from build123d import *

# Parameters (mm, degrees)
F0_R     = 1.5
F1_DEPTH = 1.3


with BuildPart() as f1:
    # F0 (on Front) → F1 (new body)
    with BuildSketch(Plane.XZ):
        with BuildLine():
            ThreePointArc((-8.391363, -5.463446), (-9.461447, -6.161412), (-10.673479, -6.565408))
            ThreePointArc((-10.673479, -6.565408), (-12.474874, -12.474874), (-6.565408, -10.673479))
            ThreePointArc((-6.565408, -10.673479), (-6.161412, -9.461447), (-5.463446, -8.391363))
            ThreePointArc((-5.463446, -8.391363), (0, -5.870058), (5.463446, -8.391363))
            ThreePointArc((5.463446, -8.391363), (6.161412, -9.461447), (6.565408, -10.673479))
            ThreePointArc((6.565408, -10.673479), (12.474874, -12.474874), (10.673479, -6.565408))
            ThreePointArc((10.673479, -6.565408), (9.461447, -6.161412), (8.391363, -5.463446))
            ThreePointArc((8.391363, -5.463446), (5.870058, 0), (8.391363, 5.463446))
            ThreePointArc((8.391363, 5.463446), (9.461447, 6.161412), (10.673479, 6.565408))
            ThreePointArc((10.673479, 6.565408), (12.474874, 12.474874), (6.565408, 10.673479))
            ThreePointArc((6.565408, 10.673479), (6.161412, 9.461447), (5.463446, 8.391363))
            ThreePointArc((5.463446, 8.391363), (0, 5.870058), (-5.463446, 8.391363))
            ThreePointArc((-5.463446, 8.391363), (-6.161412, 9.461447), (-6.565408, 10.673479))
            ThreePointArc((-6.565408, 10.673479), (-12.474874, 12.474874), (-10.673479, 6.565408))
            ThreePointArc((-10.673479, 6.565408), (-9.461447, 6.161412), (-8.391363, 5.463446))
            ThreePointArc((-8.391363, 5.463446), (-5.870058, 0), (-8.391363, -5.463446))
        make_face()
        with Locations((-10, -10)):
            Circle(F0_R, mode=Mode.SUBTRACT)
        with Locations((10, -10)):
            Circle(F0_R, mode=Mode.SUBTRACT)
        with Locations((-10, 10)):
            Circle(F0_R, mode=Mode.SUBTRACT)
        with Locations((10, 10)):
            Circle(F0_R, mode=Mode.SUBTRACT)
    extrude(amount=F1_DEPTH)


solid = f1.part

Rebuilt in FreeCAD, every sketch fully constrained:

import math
import FreeCAD as App
import Part
import Sketcher
from FreeCAD import Vector

doc = App.newDocument("Part")
params = doc.addObject("Spreadsheet::Sheet", "Params")
for row, (alias, value) in enumerate([
    ("sketch1_diameter", "3 mm"),
    ("sketch1_radius", "3.5 mm"),
    ("pad1_length", "1.3 mm"),
], start=1):
    params.set(f"A{row}", alias)
    params.set(f"B{row}", "=" + value)
    params.setAlias(f"B{row}", alias)

body = doc.addObject("PartDesign::Body", "Body")

sketch1 = body.newObject("Sketcher::SketchObject", "Sketch")
sketch1.AttachmentSupport = (doc.getObject("XZ_Plane"), [""])
sketch1.MapMode = "FlatFace"
sketch1.addGeometry(Part.ArcOfCircle(Part.Circle(Vector(-11.635594, -1.658846, 0), Vector(0, 0, 1), 5.000002), math.radians(-78.90578), math.radians(-49.54535)), False)
sketch1.addGeometry(Part.ArcOfCircle(Part.Circle(Vector(-10, -10, 0), Vector(0, 0, 1), 3.5), math.radians(101.09419), math.radians(348.90581)), False)
sketch1.addGeometry(Part.ArcOfCircle(Part.Circle(Vector(-1.658846, -11.635594, 0), Vector(0, 0, 1), 5.000002), math.radians(139.54535), math.radians(168.90578)), False)
sketch1.addGeometry(Part.ArcOfCircle(Part.Circle(Vector(0, -13.050114, 0), Vector(0, 0, 1), 7.180056), math.radians(40.454655), math.radians(139.545345)), False)
sketch1.addGeometry(Part.ArcOfCircle(Part.Circle(Vector(1.658846, -11.635594, 0), Vector(0, 0, 1), 5.000002), math.radians(11.09422), math.radians(40.45465)), False)
sketch1.addGeometry(Part.ArcOfCircle(Part.Circle(Vector(10, -10, 0), Vector(0, 0, 1), 3.5), math.radians(-168.90581), math.radians(78.90581)), False)
sketch1.addGeometry(Part.ArcOfCircle(Part.Circle(Vector(11.635594, -1.658846, 0), Vector(0, 0, 1), 5.000002), math.radians(-130.45465), math.radians(-101.09422)), False)
sketch1.addGeometry(Part.ArcOfCircle(Part.Circle(Vector(13.050114, 0, 0), Vector(0, 0, 1), 7.180056), math.radians(130.454655), math.radians(229.545345)), False)
sketch1.addGeometry(Part.ArcOfCircle(Part.Circle(Vector(11.635594, 1.658846, 0), Vector(0, 0, 1), 5.000002), math.radians(101.09422), math.radians(130.45465)), False)
sketch1.addGeometry(Part.ArcOfCircle(Part.Circle(Vector(10, 10, 0), Vector(0, 0, 1), 3.5), math.radians(-78.90581), math.radians(168.90581)), False)
sketch1.addGeometry(Part.ArcOfCircle(Part.Circle(Vector(1.658846, 11.635594, 0), Vector(0, 0, 1), 5.000002), math.radians(-40.45465), math.radians(-11.09422)), False)
sketch1.addGeometry(Part.ArcOfCircle(Part.Circle(Vector(0, 13.050114, 0), Vector(0, 0, 1), 7.180056), math.radians(-139.545345), math.radians(-40.454655)), False)
sketch1.addGeometry(Part.ArcOfCircle(Part.Circle(Vector(-1.658846, 11.635594, 0), Vector(0, 0, 1), 5.000002), math.radians(-168.90578), math.radians(-139.54535)), False)
sketch1.addGeometry(Part.ArcOfCircle(Part.Circle(Vector(-10, 10, 0), Vector(0, 0, 1), 3.5), math.radians(11.09419), math.radians(258.90581)), False)
sketch1.addGeometry(Part.ArcOfCircle(Part.Circle(Vector(-11.635594, 1.658846, 0), Vector(0, 0, 1), 5.000002), math.radians(49.54535), math.radians(78.90578)), False)
sketch1.addGeometry(Part.ArcOfCircle(Part.Circle(Vector(-13.050114, 0, 0), Vector(0, 0, 1), 7.180056), math.radians(-49.545345), math.radians(49.545345)), False)
sketch1.addGeometry(Part.Circle(Vector(-10, -10, 0), Vector(0, 0, 1), 1.5), False)
sketch1.addGeometry(Part.Circle(Vector(10, -10, 0), Vector(0, 0, 1), 1.5), False)
sketch1.addGeometry(Part.Circle(Vector(-10, 10, 0), Vector(0, 0, 1), 1.5), False)
sketch1.addGeometry(Part.Circle(Vector(10, 10, 0), Vector(0, 0, 1), 1.5), False)
sketch1.addConstraint(Sketcher.Constraint("Tangent", 0, 1, 1, 1))
sketch1.addConstraint(Sketcher.Constraint("Tangent", 1, 2, 2, 2))
sketch1.addConstraint(Sketcher.Constraint("Tangent", 2, 1, 3, 2))
sketch1.addConstraint(Sketcher.Constraint("Tangent", 3, 1, 4, 2))
sketch1.addConstraint(Sketcher.Constraint("Tangent", 4, 1, 5, 1))
sketch1.addConstraint(Sketcher.Constraint("Tangent", 5, 2, 6, 2))
sketch1.addConstraint(Sketcher.Constraint("Tangent", 6, 1, 7, 2))
sketch1.addConstraint(Sketcher.Constraint("Tangent", 7, 1, 8, 2))
sketch1.addConstraint(Sketcher.Constraint("Tangent", 8, 1, 9, 1))
sketch1.addConstraint(Sketcher.Constraint("Tangent", 9, 2, 10, 2))
sketch1.addConstraint(Sketcher.Constraint("Tangent", 10, 1, 11, 2))
sketch1.addConstraint(Sketcher.Constraint("Tangent", 11, 1, 12, 2))
sketch1.addConstraint(Sketcher.Constraint("Tangent", 12, 1, 13, 1))
sketch1.addConstraint(Sketcher.Constraint("Tangent", 13, 2, 14, 2))
sketch1.addConstraint(Sketcher.Constraint("Tangent", 14, 1, 15, 2))
sketch1.addConstraint(Sketcher.Constraint("Tangent", 15, 1, 0, 2))
sketch1.addConstraint(Sketcher.Constraint("Coincident", 16, 3, 1, 3))
sketch1.addConstraint(Sketcher.Constraint("Coincident", 17, 3, 5, 3))
sketch1.addConstraint(Sketcher.Constraint("Coincident", 18, 3, 13, 3))
sketch1.addConstraint(Sketcher.Constraint("Coincident", 19, 3, 9, 3))
sketch1.addConstraint(Sketcher.Constraint("Equal", 0, 2))
sketch1.addConstraint(Sketcher.Constraint("Equal", 2, 4))
sketch1.addConstraint(Sketcher.Constraint("Equal", 1, 5))
sketch1.addConstraint(Sketcher.Constraint("Equal", 4, 6))
sketch1.addConstraint(Sketcher.Constraint("Equal", 3, 7))
sketch1.addConstraint(Sketcher.Constraint("Equal", 6, 8))
sketch1.addConstraint(Sketcher.Constraint("Equal", 5, 9))
sketch1.addConstraint(Sketcher.Constraint("Equal", 8, 10))
sketch1.addConstraint(Sketcher.Constraint("Equal", 7, 11))
sketch1.addConstraint(Sketcher.Constraint("Equal", 10, 12))
sketch1.addConstraint(Sketcher.Constraint("Equal", 9, 13))
sketch1.addConstraint(Sketcher.Constraint("Equal", 12, 14))
sketch1.addConstraint(Sketcher.Constraint("Equal", 11, 15))
sketch1.addConstraint(Sketcher.Constraint("Equal", 16, 17))
sketch1.addConstraint(Sketcher.Constraint("Equal", 17, 18))
sketch1.addConstraint(Sketcher.Constraint("Equal", 18, 19))
sketch1.addConstraint(Sketcher.Constraint("Symmetric", 0, 3, 8, 3, -1, 1))
sketch1.addConstraint(Sketcher.Constraint("Symmetric", 2, 3, 10, 3, -1, 1))
sketch1.addConstraint(Sketcher.Constraint("Symmetric", 4, 3, 12, 3, -1, 1))
sketch1.addConstraint(Sketcher.Constraint("Symmetric", 6, 3, 14, 3, -1, 1))
sketch1.addConstraint(Sketcher.Constraint("Symmetric", 2, 3, 4, 3, -2))
sketch1.addConstraint(Sketcher.Constraint("Symmetric", 0, 3, 6, 3, -2))
sketch1.addConstraint(Sketcher.Constraint("Diameter", 16, 3.0))
sketch1.addConstraint(Sketcher.Constraint("Radius", 1, 3.5))
sketch1.addConstraint(Sketcher.Constraint("DistanceX", 1, 3, -1, 1, 10.0))
sketch1.addConstraint(Sketcher.Constraint("DistanceY", 1, 3, -1, 1, 10.0))
sketch1.addConstraint(Sketcher.Constraint("Radius", 0, 5.000002))
sketch1.addConstraint(Sketcher.Constraint("Radius", 3, 7.180056))
sketch1.addConstraint(Sketcher.Constraint("DistanceX", 2, 1, 2, 3, 3.8046))
sketch1.addConstraint(Sketcher.Constraint("DistanceY", 6, 1, 6, 3, 3.8046))
sketch1.setExpression("Constraints[42]", "Params.sketch1_diameter")
sketch1.setExpression("Constraints[43]", "Params.sketch1_radius")
pad1 = body.newObject("PartDesign::Pad", "Pad")
pad1.Profile = sketch1
pad1.setExpression("Length", "Params.pad1_length")

doc.recompute()
